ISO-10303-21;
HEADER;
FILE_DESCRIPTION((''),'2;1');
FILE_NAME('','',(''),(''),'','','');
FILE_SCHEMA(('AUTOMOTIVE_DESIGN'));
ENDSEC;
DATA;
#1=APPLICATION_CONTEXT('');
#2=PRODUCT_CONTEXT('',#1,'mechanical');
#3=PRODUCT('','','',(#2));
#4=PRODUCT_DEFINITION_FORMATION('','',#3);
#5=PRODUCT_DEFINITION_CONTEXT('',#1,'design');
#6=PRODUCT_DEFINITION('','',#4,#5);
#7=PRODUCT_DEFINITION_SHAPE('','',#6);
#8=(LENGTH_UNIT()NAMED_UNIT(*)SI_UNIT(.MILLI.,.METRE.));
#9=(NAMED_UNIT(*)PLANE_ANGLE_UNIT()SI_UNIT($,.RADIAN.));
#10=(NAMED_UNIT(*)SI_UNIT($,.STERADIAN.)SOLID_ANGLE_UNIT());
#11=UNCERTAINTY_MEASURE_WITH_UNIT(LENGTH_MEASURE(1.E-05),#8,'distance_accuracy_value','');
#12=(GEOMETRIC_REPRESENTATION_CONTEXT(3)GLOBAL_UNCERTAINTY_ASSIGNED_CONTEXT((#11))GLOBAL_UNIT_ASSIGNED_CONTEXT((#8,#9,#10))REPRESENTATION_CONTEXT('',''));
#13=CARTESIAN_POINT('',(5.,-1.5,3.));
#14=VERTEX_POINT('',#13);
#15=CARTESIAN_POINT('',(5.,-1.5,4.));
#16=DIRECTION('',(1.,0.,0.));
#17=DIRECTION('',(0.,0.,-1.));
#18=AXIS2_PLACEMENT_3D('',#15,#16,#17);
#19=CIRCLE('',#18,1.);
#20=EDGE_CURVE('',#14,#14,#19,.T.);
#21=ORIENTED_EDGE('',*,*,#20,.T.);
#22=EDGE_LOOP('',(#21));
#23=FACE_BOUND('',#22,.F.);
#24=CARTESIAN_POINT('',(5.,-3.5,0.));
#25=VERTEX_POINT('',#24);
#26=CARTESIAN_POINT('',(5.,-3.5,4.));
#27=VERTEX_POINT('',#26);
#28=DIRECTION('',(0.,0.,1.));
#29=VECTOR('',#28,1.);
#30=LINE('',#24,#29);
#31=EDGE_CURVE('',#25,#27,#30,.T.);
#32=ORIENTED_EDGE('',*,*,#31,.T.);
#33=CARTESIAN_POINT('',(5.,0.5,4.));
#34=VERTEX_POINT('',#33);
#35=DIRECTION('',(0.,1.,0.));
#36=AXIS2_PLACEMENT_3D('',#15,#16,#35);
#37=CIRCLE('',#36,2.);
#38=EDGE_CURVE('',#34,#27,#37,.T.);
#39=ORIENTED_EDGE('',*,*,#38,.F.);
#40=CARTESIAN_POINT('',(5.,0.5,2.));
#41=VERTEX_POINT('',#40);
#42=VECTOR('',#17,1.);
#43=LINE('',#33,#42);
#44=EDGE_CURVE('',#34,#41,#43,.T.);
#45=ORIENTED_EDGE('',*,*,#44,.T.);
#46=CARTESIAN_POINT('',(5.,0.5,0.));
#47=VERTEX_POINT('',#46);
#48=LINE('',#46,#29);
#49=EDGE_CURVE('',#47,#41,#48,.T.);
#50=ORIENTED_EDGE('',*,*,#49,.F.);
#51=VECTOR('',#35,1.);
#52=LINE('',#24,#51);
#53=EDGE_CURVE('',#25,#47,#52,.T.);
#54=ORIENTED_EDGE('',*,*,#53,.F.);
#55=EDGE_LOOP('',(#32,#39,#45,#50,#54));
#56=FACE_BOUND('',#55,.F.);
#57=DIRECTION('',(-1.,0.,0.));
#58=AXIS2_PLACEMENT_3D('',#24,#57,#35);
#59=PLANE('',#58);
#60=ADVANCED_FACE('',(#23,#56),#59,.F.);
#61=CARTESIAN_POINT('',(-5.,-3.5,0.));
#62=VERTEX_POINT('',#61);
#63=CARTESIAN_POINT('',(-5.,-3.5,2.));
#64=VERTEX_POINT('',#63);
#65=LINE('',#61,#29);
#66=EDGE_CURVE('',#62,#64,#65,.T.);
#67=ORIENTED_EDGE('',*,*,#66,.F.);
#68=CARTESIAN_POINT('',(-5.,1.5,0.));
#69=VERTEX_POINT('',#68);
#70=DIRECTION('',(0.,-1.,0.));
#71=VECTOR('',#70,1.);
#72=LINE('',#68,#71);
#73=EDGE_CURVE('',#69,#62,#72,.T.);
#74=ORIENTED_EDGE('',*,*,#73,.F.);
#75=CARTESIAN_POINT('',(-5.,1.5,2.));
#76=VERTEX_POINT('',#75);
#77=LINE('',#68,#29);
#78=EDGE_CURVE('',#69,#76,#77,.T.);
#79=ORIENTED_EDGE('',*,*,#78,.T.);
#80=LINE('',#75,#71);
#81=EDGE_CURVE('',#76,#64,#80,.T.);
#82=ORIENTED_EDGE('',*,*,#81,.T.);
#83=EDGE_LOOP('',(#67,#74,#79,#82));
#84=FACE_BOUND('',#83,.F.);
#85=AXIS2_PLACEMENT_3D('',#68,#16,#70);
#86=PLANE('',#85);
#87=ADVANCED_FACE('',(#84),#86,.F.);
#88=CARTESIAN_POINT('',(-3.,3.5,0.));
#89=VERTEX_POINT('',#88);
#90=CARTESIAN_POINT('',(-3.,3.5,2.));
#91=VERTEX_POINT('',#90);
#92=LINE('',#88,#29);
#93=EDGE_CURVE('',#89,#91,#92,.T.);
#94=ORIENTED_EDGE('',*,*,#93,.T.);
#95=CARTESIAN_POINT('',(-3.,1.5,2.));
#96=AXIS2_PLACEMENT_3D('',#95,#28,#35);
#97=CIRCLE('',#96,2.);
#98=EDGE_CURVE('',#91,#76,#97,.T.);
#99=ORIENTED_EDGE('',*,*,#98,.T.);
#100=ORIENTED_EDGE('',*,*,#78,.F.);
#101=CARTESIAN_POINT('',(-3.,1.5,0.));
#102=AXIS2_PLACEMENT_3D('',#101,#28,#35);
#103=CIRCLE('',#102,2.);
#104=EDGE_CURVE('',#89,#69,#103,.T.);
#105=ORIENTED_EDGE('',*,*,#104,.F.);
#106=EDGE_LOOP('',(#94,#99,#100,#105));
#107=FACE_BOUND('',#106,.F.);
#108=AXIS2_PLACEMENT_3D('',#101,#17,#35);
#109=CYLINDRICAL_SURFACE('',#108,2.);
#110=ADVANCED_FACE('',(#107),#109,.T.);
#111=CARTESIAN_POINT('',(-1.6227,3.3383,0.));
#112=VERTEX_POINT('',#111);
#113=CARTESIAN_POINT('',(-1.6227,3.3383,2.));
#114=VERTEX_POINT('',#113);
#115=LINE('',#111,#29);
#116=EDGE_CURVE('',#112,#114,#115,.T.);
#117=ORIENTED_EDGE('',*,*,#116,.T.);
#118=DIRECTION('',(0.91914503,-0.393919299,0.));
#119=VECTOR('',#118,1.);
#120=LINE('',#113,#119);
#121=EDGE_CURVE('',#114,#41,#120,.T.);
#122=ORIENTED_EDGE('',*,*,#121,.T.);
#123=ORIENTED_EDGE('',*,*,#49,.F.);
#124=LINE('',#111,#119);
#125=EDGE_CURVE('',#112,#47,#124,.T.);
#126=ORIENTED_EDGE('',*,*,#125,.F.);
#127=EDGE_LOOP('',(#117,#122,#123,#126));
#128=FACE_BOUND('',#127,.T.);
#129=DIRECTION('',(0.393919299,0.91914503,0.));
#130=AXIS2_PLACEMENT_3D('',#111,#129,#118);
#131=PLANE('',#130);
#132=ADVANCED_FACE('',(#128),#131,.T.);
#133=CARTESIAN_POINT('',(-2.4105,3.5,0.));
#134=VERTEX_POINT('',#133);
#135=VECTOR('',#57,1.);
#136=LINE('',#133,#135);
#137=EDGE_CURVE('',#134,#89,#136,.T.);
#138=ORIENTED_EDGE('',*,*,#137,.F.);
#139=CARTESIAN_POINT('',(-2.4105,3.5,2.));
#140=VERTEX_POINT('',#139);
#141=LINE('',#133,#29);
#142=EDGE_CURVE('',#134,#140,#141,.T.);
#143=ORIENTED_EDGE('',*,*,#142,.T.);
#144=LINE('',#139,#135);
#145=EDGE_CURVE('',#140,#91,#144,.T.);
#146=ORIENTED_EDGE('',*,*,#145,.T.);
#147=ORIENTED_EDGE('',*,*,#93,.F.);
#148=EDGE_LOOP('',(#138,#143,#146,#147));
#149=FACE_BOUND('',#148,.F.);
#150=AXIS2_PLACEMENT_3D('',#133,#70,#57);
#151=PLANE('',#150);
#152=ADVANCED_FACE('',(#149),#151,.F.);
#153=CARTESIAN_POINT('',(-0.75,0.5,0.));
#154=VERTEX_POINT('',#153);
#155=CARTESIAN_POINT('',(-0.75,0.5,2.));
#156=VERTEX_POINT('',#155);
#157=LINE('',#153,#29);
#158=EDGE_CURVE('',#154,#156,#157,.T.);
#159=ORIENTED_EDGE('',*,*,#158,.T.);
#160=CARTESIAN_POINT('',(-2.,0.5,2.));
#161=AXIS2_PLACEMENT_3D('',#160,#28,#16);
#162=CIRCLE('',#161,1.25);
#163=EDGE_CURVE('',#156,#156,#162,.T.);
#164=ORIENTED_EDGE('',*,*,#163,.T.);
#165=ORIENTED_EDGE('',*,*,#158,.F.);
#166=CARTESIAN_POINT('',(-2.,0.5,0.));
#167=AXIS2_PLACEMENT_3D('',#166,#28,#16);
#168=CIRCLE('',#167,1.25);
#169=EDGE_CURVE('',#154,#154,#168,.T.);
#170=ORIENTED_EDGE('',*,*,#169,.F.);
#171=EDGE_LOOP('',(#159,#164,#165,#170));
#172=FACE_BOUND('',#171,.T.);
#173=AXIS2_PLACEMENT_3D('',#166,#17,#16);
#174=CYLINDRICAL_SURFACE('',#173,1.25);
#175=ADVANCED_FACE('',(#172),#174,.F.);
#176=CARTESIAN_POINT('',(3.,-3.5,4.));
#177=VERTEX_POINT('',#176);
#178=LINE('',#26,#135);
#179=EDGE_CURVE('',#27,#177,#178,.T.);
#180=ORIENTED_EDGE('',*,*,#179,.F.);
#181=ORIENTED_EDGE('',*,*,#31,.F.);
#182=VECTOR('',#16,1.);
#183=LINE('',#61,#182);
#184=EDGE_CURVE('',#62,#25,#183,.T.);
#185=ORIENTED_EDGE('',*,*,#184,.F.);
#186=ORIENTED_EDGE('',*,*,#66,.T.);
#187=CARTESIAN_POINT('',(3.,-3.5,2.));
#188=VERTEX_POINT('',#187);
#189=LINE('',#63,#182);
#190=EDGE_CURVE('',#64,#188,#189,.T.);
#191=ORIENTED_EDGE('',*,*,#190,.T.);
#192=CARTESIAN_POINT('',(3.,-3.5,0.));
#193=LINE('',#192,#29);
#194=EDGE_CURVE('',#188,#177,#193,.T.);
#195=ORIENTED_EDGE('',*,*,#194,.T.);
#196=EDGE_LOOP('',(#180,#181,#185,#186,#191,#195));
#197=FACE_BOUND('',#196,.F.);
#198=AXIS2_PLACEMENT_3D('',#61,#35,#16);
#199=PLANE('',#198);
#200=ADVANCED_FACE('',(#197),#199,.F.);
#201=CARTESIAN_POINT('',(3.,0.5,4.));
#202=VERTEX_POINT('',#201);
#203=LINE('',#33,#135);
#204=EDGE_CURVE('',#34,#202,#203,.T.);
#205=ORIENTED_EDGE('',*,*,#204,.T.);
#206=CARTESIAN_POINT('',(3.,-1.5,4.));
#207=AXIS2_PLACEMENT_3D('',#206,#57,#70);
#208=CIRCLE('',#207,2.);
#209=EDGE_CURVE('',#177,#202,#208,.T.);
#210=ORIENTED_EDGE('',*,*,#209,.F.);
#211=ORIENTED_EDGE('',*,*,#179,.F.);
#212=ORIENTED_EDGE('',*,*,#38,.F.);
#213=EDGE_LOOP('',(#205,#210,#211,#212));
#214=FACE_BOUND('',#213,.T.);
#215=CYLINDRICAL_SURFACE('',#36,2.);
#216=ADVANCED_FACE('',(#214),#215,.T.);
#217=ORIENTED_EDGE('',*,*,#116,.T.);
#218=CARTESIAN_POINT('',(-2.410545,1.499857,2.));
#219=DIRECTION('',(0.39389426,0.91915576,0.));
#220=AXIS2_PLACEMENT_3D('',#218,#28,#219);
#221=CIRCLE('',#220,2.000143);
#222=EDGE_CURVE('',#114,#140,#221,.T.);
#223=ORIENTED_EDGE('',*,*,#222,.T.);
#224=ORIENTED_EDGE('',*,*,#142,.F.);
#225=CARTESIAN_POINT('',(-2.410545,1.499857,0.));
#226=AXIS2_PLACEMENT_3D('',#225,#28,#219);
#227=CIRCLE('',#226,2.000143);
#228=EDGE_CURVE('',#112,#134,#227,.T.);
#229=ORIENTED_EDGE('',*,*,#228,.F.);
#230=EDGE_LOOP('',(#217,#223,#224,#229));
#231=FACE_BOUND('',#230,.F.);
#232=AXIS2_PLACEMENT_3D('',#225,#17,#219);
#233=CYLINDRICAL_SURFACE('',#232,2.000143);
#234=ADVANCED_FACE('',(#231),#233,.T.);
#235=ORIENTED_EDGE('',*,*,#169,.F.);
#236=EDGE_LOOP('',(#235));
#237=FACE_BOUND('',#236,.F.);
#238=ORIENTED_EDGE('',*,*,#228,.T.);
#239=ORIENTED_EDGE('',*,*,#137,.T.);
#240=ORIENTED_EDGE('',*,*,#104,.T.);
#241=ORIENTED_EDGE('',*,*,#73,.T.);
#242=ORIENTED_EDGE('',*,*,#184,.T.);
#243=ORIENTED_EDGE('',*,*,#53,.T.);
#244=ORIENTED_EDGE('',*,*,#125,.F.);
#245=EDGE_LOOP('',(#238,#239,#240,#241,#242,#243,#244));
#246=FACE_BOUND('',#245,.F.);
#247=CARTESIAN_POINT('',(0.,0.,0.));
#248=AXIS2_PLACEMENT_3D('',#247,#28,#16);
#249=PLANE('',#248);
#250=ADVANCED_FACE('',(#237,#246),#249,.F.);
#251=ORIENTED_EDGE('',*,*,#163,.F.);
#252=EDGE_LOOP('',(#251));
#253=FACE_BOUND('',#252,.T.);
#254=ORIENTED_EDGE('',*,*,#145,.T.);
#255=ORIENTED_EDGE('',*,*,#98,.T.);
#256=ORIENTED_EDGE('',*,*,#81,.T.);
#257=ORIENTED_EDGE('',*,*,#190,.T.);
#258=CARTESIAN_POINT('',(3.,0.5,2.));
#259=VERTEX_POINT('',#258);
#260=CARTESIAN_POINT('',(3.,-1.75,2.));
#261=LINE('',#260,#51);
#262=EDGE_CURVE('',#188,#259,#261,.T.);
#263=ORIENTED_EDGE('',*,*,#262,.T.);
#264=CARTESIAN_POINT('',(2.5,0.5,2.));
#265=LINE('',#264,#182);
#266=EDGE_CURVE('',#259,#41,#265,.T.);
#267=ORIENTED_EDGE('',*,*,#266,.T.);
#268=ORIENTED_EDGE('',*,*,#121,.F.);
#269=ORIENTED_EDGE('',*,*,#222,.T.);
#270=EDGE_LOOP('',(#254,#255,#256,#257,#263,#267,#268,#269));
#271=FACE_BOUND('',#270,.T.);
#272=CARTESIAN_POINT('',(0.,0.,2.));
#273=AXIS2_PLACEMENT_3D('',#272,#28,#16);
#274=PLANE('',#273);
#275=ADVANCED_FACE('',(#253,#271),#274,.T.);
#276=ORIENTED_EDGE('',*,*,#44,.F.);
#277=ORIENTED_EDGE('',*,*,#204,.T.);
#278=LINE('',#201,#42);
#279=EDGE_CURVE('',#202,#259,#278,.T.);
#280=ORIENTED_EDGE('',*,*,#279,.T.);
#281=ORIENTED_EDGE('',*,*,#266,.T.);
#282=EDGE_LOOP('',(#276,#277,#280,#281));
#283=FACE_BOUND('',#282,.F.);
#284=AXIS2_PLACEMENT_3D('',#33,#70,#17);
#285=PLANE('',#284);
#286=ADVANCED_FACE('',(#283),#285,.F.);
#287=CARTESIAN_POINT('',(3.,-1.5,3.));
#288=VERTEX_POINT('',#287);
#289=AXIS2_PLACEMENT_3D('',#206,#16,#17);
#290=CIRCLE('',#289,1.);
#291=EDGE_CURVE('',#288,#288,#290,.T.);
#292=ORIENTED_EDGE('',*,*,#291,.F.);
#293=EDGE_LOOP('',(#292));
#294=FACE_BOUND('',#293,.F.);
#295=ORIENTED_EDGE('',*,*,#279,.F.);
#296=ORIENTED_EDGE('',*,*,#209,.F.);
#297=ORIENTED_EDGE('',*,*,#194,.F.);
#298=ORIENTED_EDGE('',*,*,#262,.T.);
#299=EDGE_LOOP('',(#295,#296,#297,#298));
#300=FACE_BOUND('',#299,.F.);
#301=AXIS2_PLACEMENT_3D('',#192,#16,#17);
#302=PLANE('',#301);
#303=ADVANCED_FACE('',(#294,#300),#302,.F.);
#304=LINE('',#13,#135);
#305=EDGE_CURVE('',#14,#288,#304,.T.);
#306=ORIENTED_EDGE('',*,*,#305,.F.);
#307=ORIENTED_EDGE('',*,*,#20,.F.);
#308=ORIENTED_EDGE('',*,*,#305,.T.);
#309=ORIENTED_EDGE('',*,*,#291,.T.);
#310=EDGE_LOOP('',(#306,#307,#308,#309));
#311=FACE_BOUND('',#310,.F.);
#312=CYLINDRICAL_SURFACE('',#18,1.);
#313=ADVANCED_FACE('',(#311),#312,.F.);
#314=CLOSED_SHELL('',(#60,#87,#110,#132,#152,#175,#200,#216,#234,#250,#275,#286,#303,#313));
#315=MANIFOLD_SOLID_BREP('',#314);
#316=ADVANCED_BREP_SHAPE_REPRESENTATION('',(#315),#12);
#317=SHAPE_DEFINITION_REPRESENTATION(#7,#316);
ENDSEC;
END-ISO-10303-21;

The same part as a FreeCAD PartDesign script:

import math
import FreeCAD as App
import Part
import Sketcher

V = App.Vector

doc = App.newDocument("Part")
params = doc.addObject("Spreadsheet::Sheet", "Params")
for row, (alias, value) in enumerate([
    ("sketch1_radius", "2 mm"),
    ("sketch1_diameter", "2.5 mm"),
    ("sketch1_width", "10 mm"),
    ("sketch1_height", "4 mm"),
    ("pad1_length", "2 mm"),
    ("sketch2_diameter", "2 mm"),
    ("sketch2_radius", "2 mm"),
    ("pad2_length", "2 mm"),
], start=1):
    params.set(f"A{row}", alias)
    params.set(f"B{row}", "=" + value)
    params.setAlias(f"B{row}", alias)

body = doc.addObject("PartDesign::Body", "Body")

sketch1 = body.newObject("Sketcher::SketchObject", "Sketch")
sketch1.AttachmentSupport = (doc.getObject("XY_Plane"), [""])
sketch1.MapMode = "FlatFace"
sketch1.addGeometry([
    Part.LineSegment(V(-5, 1.5, 0), V(-5, -3.5, 0)),
    Part.LineSegment(V(-5, -3.5, 0), V(5, -3.5, 0)),
    Part.LineSegment(V(5, -3.5, 0), V(5, 0.5, 0)),
    Part.LineSegment(V(5, 0.5, 0), V(-1.6, 3.3, 0)),
    Part.ArcOfCircle(Part.Circle(V(-2.4, 1.5, 0), V(0, 0, 1), 2), math.radians(67), math.radians(90)),
    Part.LineSegment(V(-2.4, 3.5, 0), V(-3, 3.5, 0)),
    Part.ArcOfCircle(Part.Circle(V(-3, 1.5, 0), V(0, 0, 1), 2), math.radians(90), math.radians(180)),
    Part.Circle(V(-2, 0.5, 0), V(0, 0, 1), 1.2),
], False)
sketch1.addConstraint([
    Sketcher.Constraint("Coincident", 0, 2, 1, 1),
    Sketcher.Constraint("Coincident", 1, 2, 2, 1),
    Sketcher.Constraint("Coincident", 2, 2, 3, 1),
    Sketcher.Constraint("Tangent", 3, 2, 4, 1),
    Sketcher.Constraint("Tangent", 4, 2, 5, 1),
    Sketcher.Constraint("Tangent", 5, 2, 6, 1),
    Sketcher.Constraint("Tangent", 6, 2, 0, 1),
    Sketcher.Constraint("Vertical", 0),
    Sketcher.Constraint("Horizontal", 1),
    Sketcher.Constraint("Vertical", 2),
    Sketcher.Constraint("Horizontal", 5),
    Sketcher.Constraint("Equal", 4, 6),
    Sketcher.Constraint("Horizontal", 7, 3, 2, 2),
    Sketcher.Constraint("Radius", 4, 2.0),
    Sketcher.Constraint("Diameter", 7, 2.5),
    Sketcher.Constraint("DistanceX", 1, 1, 1, 2, 10.0),
    Sketcher.Constraint("DistanceY", 2, 1, 2, 2, 4.0),
    Sketcher.Constraint("DistanceX", 6, 3, -1, 1, 3.0),
    Sketcher.Constraint("DistanceX", 7, 3, -1, 1, 2.0),
    Sketcher.Constraint("DistanceY", 7, 3, 4, 2, 3.0),
    Sketcher.Constraint("DistanceY", -1, 1, 4, 3, 1.5),
    Sketcher.Constraint("DistanceX", 5, 2, 5, 1, 0.5895),
])
sketch1.setExpression("Constraints[13]", "Params.sketch1_radius")
sketch1.setExpression("Constraints[14]", "Params.sketch1_diameter")
sketch1.setExpression("Constraints[15]", "Params.sketch1_width")
sketch1.setExpression("Constraints[16]", "Params.sketch1_height")
pad1 = body.newObject("PartDesign::Pad", "Pad")
pad1.Profile = sketch1
pad1.setExpression("Length", "Params.pad1_length")

sketch2 = body.newObject("Sketcher::SketchObject", "Sketch001")
sketch2.AttachmentSupport = (doc.getObject("YZ_Plane"), [""])
sketch2.MapMode = "FlatFace"
sketch2.AttachmentOffset = App.Placement(V(0, 0, 5), App.Rotation())
sketch2.addGeometry([
    Part.LineSegment(V(-3.5, 4, 0), V(-3.5, 0, 0)),
    Part.LineSegment(V(-3.5, 0, 0), V(0.5, 0, 0)),
    Part.LineSegment(V(0.5, 0, 0), V(0.5, 4, 0)),
    Part.ArcOfCircle(Part.Circle(V(-1.5, 4, 0), V(0, 0, 1), 2), math.radians(0), math.radians(180)),
    Part.Circle(V(-1.5, 4, 0), V(0, 0, 1), 1),
], False)
sketch2.addConstraint([
    Sketcher.Constraint("Coincident", 0, 2, 1, 1),
    Sketcher.Constraint("Coincident", 1, 2, 2, 1),
    Sketcher.Constraint("Tangent", 2, 2, 3, 1),
    Sketcher.Constraint("Tangent", 3, 2, 0, 1),
    Sketcher.Constraint("Vertical", 0),
    Sketcher.Constraint("Horizontal", 1),
    Sketcher.Constraint("Vertical", 2),
    Sketcher.Constraint("Coincident", 4, 3, 3, 3),
    Sketcher.Constraint("PointOnObject", 0, 2, -1),
    Sketcher.Constraint("Equal", 1, 0),
    Sketcher.Constraint("Diameter", 4, 2.0),
    Sketcher.Constraint("Radius", 3, 2.0),
    Sketcher.Constraint("DistanceX", 3, 3, -1, 1, 1.5),
])
sketch2.setExpression("Constraints[10]", "Params.sketch2_diameter")
sketch2.setExpression("Constraints[11]", "Params.sketch2_radius")
pad2 = body.newObject("PartDesign::Pad", "Pad001")
pad2.Profile = sketch2
pad2.setExpression("Length", "Params.pad2_length")
pad2.Reversed = True

doc.recompute()
